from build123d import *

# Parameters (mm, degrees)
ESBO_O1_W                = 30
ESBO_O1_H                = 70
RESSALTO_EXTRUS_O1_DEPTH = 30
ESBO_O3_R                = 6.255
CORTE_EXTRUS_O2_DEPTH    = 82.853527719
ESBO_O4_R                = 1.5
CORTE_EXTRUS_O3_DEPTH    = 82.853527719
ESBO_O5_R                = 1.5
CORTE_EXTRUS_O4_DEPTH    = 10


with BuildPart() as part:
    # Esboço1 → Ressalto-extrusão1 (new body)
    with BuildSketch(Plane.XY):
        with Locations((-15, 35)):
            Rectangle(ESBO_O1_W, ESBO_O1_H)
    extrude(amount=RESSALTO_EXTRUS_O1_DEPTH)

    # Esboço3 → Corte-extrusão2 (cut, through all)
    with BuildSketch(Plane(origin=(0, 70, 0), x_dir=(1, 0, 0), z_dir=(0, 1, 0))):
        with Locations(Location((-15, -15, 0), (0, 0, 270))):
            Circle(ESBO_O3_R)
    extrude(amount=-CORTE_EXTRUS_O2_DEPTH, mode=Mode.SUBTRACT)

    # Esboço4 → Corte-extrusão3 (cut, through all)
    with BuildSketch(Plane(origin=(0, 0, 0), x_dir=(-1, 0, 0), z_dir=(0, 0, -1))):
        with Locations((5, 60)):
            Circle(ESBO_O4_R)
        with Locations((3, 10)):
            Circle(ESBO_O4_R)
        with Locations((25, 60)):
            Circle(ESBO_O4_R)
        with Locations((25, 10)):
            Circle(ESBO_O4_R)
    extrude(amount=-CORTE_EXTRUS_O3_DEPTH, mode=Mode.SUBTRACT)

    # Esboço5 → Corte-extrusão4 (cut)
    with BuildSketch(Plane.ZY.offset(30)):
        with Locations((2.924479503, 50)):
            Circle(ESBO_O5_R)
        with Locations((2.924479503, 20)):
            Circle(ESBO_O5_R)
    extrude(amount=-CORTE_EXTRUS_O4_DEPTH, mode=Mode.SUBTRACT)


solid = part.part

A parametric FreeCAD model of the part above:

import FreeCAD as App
import Part
import Sketcher

doc = App.newDocument("Part")
body = doc.addObject("PartDesign::Body", "Body")

# Sketch on XY plane
sketch1 = body.newObject("Sketcher::SketchObject", "Sketch")
sketch1.AttachmentSupport = (doc.getObject("XY_Plane"), [""])
sketch1.MapMode = "FlatFace"
sketch1.addGeometry([
    Part.LineSegment(App.Vector(-30, 70, 0), App.Vector(-30, 0, 0)),
    Part.LineSegment(App.Vector(-30, 0, 0), App.Vector(0, 0, 0)),
    Part.LineSegment(App.Vector(0, 0, 0), App.Vector(0, 70, 0)),
    Part.LineSegment(App.Vector(0, 70, 0), App.Vector(-30, 70, 0)),
], False)
sketch1.addConstraint([
    Sketcher.Constraint("Coincident", 0, 2, 1, 1),
    Sketcher.Constraint("Coincident", 1, 2, 2, 1),
    Sketcher.Constraint("Coincident", 2, 2, 3, 1),
    Sketcher.Constraint("Coincident", 3, 2, 0, 1),
    Sketcher.Constraint("Vertical", 0),
    Sketcher.Constraint("Horizontal", 1),
    Sketcher.Constraint("Vertical", 2),
    Sketcher.Constraint("Horizontal", 3),
    Sketcher.Constraint("Coincident", 1, 2, -1, 1),
    Sketcher.Constraint("DistanceX", 1, 1, 1, 2, 30.0),
    Sketcher.Constraint("DistanceY", 0, 2, 0, 1, 70.0),
])
pad1 = body.newObject("PartDesign::Pad", "Pad")
pad1.Profile = sketch1
pad1.Length = 30

# Sketch on XZ plane
sketch2 = body.newObject("Sketcher::SketchObject", "Sketch001")
sketch2.AttachmentSupport = (doc.getObject("XZ_Plane"), [""])
sketch2.MapMode = "FlatFace"
sketch2.AttachmentOffset = App.Placement(App.Vector(0, 0, -70), App.Rotation())
sketch2.addGeometry(Part.Circle(App.Vector(-15, 15, 0), App.Vector(0, 0, 1), 6), False)
sketch2.addConstraint([
    Sketcher.Constraint("Diameter", 0, 12.51),
    Sketcher.Constraint("DistanceX", 0, 3, -1, 1, 15.0),
    Sketcher.Constraint("DistanceY", -1, 1, 0, 3, 15.0),
])
pocket1 = body.newObject("PartDesign::Pocket", "Pocket")
pocket1.Profile = sketch2
pocket1.Type = "ThroughAll"
pocket1.Reversed = True

# Sketch on XY plane
sketch3 = body.newObject("Sketcher::SketchObject", "Sketch002")
sketch3.AttachmentSupport = (doc.getObject("XY_Plane"), [""])
sketch3.MapMode = "FlatFace"
sketch3.addGeometry([
    Part.Circle(App.Vector(-5, 60, 0), App.Vector(0, 0, 1), 1.5),
    Part.Circle(App.Vector(-3, 10, 0), App.Vector(0, 0, 1), 1.5),
    Part.Circle(App.Vector(-25, 60, 0), App.Vector(0, 0, 1), 1.5),
    Part.Circle(App.Vector(-25, 10, 0), App.Vector(0, 0, 1), 1.5),
], False)
sketch3.addConstraint([
    Sketcher.Constraint("Equal", 0, 1),
    Sketcher.Constraint("Equal", 1, 2),
    Sketcher.Constraint("Equal", 2, 3),
    Sketcher.Constraint("Horizontal", 0, 3, 2, 3),
    Sketcher.Constraint("Horizontal", 1, 3, 3, 3),
    Sketcher.Constraint("Vertical", 2, 3, 3, 3),
    Sketcher.Constraint("Diameter", 0, 3.0),
    Sketcher.Constraint("DistanceX", 0, 3, -1, 1, 5.0),
    Sketcher.Constraint("DistanceY", -1, 1, 0, 3, 60.0),
    Sketcher.Constraint("DistanceX", 1, 3, -1, 1, 3.0),
    Sketcher.Constraint("DistanceY", -1, 1, 1, 3, 10.0),
    Sketcher.Constraint("DistanceX", 2, 3, -1, 1, 25.0),
])
pocket2 = body.newObject("PartDesign::Pocket", "Pocket001")
pocket2.Profile = sketch3
pocket2.Type = "ThroughAll"
pocket2.Reversed = True

# Sketch on YZ plane
sketch4 = body.newObject("Sketcher::SketchObject", "Sketch003")
sketch4.AttachmentSupport = (doc.getObject("YZ_Plane"), [""])
sketch4.MapMode = "FlatFace"
sketch4.AttachmentOffset = App.Placement(App.Vector(0, 0, -30), App.Rotation())
sketch4.addGeometry([
    Part.Circle(App.Vector(50, 2.9, 0), App.Vector(0, 0, 1), 1.5),
    Part.Circle(App.Vector(20, 2.9, 0), App.Vector(0, 0, 1), 1.5),
], False)
sketch4.addConstraint([
    Sketcher.Constraint("Equal", 0, 1),
    Sketcher.Constraint("Horizontal", 0, 3, 1, 3),
    Sketcher.Constraint("Diameter", 0, 3.0),
    Sketcher.Constraint("DistanceX", -1, 1, 0, 3, 50.0),
    Sketcher.Constraint("DistanceX", -1, 1, 1, 3, 20.0),
    Sketcher.Constraint("DistanceY", -1, 1, 0, 3, 2.92448),
])
pocket3 = body.newObject("PartDesign::Pocket", "Pocket002")
pocket3.Profile = sketch4
pocket3.Length = 10
pocket3.Reversed = True

doc.recompute()
